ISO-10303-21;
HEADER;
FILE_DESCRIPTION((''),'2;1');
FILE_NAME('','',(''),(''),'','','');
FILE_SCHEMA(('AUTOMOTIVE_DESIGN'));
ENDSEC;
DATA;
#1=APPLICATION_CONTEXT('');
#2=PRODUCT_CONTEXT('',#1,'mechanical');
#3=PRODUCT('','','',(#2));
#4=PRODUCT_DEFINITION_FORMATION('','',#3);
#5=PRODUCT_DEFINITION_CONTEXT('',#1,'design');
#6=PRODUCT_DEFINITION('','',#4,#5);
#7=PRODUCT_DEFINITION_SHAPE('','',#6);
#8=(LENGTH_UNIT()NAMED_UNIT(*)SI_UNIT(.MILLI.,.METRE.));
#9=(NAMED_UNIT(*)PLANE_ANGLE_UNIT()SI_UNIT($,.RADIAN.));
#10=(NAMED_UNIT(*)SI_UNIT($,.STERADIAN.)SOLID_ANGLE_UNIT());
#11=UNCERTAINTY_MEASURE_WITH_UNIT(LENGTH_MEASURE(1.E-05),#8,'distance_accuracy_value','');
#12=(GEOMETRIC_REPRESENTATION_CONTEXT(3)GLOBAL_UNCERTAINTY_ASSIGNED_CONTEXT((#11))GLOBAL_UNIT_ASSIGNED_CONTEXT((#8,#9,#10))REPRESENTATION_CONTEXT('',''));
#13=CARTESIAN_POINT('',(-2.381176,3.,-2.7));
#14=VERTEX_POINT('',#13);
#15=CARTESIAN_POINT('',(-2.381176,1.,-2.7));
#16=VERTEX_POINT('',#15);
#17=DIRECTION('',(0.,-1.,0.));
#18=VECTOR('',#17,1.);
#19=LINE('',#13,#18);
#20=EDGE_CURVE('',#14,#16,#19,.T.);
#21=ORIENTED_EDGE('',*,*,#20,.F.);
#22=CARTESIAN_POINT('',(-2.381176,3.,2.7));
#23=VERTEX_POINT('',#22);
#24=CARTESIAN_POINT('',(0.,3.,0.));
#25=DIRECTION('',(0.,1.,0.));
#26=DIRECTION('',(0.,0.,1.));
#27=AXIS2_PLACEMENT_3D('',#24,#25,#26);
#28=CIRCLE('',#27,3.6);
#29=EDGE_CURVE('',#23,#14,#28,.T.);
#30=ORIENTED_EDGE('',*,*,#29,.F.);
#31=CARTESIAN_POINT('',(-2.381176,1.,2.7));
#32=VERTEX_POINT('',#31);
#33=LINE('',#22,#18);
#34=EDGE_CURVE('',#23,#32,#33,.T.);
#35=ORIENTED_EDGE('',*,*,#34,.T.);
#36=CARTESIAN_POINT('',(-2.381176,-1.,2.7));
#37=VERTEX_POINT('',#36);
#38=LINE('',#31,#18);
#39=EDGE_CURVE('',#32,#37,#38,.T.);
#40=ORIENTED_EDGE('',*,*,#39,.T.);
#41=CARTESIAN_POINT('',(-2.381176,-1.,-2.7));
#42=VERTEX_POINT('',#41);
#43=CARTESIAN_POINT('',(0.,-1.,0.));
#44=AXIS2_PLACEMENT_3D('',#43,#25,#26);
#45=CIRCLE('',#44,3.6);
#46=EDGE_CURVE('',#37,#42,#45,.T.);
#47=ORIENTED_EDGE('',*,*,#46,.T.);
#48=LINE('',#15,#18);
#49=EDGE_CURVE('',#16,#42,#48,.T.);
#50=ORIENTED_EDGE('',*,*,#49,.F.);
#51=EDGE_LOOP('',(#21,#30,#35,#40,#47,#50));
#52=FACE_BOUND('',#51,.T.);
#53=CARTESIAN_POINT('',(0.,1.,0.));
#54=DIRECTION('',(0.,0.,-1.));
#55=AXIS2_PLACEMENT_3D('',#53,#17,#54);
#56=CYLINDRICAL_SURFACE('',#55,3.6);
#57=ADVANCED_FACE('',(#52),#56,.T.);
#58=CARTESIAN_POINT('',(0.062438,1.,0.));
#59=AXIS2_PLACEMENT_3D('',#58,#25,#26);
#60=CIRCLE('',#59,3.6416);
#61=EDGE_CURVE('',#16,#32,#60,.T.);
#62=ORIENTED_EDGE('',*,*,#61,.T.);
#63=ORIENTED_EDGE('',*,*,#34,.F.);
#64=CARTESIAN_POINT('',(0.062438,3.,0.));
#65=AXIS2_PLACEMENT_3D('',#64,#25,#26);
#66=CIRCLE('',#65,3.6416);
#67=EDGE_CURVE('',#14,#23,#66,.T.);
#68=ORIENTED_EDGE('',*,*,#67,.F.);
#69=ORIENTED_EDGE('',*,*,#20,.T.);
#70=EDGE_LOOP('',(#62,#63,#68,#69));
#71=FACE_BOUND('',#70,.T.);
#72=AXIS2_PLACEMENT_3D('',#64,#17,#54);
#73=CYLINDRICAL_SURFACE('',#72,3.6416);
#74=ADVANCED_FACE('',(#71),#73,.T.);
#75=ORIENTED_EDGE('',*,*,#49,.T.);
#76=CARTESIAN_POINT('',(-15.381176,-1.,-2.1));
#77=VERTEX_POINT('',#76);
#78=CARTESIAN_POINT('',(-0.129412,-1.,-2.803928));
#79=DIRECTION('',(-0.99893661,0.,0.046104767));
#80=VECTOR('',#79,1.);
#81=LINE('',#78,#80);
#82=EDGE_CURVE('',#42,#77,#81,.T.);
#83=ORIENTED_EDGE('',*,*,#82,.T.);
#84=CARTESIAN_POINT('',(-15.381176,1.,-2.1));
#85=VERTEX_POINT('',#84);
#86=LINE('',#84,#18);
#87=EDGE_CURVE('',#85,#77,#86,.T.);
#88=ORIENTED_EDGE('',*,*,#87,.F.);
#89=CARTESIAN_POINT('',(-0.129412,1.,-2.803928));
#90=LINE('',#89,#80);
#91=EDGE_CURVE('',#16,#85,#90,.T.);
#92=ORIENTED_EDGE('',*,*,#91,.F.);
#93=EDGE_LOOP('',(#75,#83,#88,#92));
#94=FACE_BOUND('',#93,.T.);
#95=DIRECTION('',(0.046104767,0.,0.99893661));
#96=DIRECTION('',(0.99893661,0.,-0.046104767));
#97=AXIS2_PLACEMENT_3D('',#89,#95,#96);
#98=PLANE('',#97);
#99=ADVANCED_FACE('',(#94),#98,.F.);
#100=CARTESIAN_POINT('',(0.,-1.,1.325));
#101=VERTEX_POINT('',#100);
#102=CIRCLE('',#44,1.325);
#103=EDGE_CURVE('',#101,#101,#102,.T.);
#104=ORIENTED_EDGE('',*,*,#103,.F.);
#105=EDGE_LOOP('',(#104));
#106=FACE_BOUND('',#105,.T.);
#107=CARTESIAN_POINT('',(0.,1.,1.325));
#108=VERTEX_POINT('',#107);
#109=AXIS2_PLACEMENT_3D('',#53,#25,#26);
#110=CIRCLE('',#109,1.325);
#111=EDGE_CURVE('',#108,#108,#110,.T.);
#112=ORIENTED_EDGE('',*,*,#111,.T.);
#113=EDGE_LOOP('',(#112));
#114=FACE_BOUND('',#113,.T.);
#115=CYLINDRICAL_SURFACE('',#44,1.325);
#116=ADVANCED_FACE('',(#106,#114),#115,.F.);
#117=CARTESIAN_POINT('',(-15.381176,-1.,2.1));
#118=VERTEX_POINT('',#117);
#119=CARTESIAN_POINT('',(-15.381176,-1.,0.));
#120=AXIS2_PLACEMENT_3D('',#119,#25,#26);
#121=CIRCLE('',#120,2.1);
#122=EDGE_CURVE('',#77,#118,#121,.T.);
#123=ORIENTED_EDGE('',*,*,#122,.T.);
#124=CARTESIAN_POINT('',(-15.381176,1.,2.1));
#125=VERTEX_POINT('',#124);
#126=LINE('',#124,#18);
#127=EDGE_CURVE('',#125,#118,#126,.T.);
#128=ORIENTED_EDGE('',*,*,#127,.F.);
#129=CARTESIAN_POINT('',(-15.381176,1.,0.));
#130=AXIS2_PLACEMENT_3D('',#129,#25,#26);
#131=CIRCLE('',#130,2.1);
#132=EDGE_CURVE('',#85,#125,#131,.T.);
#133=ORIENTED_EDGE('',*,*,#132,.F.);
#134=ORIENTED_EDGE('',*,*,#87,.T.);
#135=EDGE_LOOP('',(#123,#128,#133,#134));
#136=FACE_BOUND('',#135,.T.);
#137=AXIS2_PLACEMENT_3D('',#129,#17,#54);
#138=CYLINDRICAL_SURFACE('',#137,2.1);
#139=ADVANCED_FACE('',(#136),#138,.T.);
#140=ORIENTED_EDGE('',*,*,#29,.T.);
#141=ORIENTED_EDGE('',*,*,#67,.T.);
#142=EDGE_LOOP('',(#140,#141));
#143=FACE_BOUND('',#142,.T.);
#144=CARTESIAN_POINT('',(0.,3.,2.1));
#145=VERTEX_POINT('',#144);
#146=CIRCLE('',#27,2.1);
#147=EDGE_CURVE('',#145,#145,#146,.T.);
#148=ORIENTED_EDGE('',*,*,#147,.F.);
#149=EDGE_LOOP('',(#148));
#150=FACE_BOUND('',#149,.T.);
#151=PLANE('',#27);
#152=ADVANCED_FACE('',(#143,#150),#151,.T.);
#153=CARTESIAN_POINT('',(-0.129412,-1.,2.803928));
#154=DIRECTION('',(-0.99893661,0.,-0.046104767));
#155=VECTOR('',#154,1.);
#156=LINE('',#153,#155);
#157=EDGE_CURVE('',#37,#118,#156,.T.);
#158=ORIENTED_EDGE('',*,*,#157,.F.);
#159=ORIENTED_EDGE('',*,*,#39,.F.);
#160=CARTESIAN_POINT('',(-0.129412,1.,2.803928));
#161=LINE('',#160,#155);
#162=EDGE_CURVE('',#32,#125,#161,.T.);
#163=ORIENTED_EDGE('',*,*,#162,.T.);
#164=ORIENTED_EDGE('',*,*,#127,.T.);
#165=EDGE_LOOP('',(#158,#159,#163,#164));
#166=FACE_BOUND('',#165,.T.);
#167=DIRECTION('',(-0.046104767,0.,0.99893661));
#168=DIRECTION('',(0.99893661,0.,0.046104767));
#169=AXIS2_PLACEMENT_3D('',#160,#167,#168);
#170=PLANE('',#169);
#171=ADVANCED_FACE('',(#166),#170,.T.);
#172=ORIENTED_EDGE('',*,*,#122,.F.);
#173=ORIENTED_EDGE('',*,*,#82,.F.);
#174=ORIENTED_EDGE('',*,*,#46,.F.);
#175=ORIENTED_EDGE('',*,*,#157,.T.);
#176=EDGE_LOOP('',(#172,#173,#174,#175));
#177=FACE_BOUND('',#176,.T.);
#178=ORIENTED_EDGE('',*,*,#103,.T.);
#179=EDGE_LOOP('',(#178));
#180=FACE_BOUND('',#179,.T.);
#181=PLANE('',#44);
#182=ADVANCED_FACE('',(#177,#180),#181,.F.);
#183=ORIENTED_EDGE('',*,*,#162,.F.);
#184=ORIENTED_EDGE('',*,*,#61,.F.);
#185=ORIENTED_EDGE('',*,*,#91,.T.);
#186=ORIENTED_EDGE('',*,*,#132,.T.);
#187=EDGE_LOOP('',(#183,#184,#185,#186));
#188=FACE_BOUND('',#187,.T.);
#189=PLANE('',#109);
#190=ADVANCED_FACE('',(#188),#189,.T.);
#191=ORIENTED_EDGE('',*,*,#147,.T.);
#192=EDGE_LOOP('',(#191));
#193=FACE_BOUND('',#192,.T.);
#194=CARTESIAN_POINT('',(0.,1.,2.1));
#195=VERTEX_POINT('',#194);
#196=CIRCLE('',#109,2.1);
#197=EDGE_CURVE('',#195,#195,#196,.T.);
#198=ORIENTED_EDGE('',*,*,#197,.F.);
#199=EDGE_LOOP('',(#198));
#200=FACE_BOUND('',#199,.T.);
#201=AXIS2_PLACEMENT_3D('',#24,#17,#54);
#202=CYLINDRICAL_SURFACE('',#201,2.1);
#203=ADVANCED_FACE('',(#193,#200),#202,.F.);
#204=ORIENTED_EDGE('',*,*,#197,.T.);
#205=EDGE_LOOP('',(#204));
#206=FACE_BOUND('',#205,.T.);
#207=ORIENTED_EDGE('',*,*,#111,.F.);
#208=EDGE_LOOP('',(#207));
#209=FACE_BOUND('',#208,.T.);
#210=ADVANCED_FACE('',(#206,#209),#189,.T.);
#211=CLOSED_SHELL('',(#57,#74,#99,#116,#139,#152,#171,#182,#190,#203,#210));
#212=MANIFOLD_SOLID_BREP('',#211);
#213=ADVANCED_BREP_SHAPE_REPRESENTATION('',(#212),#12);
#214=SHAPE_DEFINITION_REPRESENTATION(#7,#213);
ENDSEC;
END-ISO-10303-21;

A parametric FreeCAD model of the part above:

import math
import FreeCAD as App
import Part
import Sketcher
Q = App.Units.Quantity

doc = App.newDocument("Part")
body = doc.addObject("PartDesign::Body", "Body")

sketch1 = doc.addObject("Sketcher::SketchObject", "Sketch")
body.addObject(sketch1)
sketch1.AttachmentSupport = (doc.XZ_Plane, [""])
sketch1.MapMode = "FlatFace"
sketch1.addGeometry([
    Part.ArcOfCircle(Part.Circle(App.Vector(-15.381176, 0, 0), App.Vector(0, 0, 1), 2.1), math.radians(90), math.radians(270)),
    Part.LineSegment(App.Vector(-15.381176, 2.1, 0), App.Vector(-2.381176, 2.7, 0)),
    Part.ArcOfCircle(Part.Circle(App.Vector(0, 0, 0), App.Vector(0, 0, 1), 3.6), math.radians(-131.409622), math.radians(131.409622)),
    Part.LineSegment(App.Vector(-2.381176, -2.7, 0), App.Vector(-15.381176, -2.1, 0)),
], False)
sketch1.addConstraint([
    Sketcher.Constraint("Coincident", 0, 1, 1, 1),
    Sketcher.Constraint("Coincident", 1, 2, 2, 2),
    Sketcher.Constraint("Coincident", 2, 1, 3, 1),
    Sketcher.Constraint("Coincident", 3, 2, 0, 2),
    Sketcher.Constraint("Coincident", 2, 3, -1, 1),
    Sketcher.Constraint("Symmetric", 0, 1, 3, 2, -1),
    Sketcher.Constraint("Vertical", 1, 2, 2, 1),
    Sketcher.Constraint("Radius", 0, Q("2.1 mm")),
    Sketcher.Constraint("Radius", 2, Q("3.6 mm")),
    Sketcher.Constraint("DistanceX", 0, 1, 1, 2, Q("13 mm")),
    Sketcher.Constraint("DistanceX", 0, 3, 1, 2, Q("13 mm")),
    Sketcher.Constraint("DistanceY", -1, 1, 1, 2, Q("2.7 mm")),
])
pad1 = doc.addObject("PartDesign::Pad", "Pad")
body.addObject(pad1)
pad1.Profile = sketch1
pad1.Length = 2
pad1.Midplane = True

sketch2 = doc.addObject("Sketcher::SketchObject", "Sketch001")
body.addObject(sketch2)
sketch2.AttachmentSupport = (doc.XZ_Plane, [""])
sketch2.MapMode = "FlatFace"
sketch2.AttachmentOffset = App.Placement(App.Vector(0, 0, -3), App.Rotation())
sketch2.addGeometry([
    Part.ArcOfCircle(Part.Circle(App.Vector(0.062438, 0, 0), App.Vector(0, 0, 1), 3.6416), math.radians(132.146427), math.radians(227.853573)),
    Part.ArcOfCircle(Part.Circle(App.Vector(0, 0, 0), App.Vector(0, 0, 1), 3.6), math.radians(-131.409622), math.radians(131.409622)),
    Part.Circle(App.Vector(0, 0, 0), App.Vector(0, 0, 1), 2.1),
], False)
sketch2.addConstraint([
    Sketcher.Constraint("Coincident", 0, 1, 1, 2),
    Sketcher.Constraint("Coincident", 1, 1, 0, 2),
    Sketcher.Constraint("Coincident", 1, 3, -1, 1),
    Sketcher.Constraint("Coincident", 2, 3, -1, 1),
    Sketcher.Constraint("PointOnObject", 0, 3, -1),
    Sketcher.Constraint("Diameter", 2, Q("4.2 mm")),
    Sketcher.Constraint("Radius", 1, Q("3.6 mm")),
    Sketcher.Constraint("DistanceY", -1, 1, 0, 1, Q("2.7 mm")),
    Sketcher.Constraint("Radius", 0, Q("3.6416 mm")),
])
pad2 = doc.addObject("PartDesign::Pad", "Pad001")
body.addObject(pad2)
pad2.Profile = sketch2
pad2.Length = 2

sketch3 = doc.addObject("Sketcher::SketchObject", "Sketch002")
body.addObject(sketch3)
sketch3.AttachmentSupport = (doc.XZ_Plane, [""])
sketch3.MapMode = "FlatFace"
sketch3.AttachmentOffset = App.Placement(App.Vector(0, 0, -1), App.Rotation())
sketch3.addGeometry(Part.Circle(App.Vector(0, 0, 0), App.Vector(0, 0, 1), 1.325), False)
sketch3.addConstraint([
    Sketcher.Constraint("Coincident", 0, 3, -1, 1),
    Sketcher.Constraint("Diameter", 0, Q("2.65 mm")),
])
pocket1 = doc.addObject("PartDesign::Pocket", "Pocket")
body.addObject(pocket1)
pocket1.Profile = sketch3
pocket1.Type = "ThroughAll"
pocket1.Midplane = True

doc.recompute()
